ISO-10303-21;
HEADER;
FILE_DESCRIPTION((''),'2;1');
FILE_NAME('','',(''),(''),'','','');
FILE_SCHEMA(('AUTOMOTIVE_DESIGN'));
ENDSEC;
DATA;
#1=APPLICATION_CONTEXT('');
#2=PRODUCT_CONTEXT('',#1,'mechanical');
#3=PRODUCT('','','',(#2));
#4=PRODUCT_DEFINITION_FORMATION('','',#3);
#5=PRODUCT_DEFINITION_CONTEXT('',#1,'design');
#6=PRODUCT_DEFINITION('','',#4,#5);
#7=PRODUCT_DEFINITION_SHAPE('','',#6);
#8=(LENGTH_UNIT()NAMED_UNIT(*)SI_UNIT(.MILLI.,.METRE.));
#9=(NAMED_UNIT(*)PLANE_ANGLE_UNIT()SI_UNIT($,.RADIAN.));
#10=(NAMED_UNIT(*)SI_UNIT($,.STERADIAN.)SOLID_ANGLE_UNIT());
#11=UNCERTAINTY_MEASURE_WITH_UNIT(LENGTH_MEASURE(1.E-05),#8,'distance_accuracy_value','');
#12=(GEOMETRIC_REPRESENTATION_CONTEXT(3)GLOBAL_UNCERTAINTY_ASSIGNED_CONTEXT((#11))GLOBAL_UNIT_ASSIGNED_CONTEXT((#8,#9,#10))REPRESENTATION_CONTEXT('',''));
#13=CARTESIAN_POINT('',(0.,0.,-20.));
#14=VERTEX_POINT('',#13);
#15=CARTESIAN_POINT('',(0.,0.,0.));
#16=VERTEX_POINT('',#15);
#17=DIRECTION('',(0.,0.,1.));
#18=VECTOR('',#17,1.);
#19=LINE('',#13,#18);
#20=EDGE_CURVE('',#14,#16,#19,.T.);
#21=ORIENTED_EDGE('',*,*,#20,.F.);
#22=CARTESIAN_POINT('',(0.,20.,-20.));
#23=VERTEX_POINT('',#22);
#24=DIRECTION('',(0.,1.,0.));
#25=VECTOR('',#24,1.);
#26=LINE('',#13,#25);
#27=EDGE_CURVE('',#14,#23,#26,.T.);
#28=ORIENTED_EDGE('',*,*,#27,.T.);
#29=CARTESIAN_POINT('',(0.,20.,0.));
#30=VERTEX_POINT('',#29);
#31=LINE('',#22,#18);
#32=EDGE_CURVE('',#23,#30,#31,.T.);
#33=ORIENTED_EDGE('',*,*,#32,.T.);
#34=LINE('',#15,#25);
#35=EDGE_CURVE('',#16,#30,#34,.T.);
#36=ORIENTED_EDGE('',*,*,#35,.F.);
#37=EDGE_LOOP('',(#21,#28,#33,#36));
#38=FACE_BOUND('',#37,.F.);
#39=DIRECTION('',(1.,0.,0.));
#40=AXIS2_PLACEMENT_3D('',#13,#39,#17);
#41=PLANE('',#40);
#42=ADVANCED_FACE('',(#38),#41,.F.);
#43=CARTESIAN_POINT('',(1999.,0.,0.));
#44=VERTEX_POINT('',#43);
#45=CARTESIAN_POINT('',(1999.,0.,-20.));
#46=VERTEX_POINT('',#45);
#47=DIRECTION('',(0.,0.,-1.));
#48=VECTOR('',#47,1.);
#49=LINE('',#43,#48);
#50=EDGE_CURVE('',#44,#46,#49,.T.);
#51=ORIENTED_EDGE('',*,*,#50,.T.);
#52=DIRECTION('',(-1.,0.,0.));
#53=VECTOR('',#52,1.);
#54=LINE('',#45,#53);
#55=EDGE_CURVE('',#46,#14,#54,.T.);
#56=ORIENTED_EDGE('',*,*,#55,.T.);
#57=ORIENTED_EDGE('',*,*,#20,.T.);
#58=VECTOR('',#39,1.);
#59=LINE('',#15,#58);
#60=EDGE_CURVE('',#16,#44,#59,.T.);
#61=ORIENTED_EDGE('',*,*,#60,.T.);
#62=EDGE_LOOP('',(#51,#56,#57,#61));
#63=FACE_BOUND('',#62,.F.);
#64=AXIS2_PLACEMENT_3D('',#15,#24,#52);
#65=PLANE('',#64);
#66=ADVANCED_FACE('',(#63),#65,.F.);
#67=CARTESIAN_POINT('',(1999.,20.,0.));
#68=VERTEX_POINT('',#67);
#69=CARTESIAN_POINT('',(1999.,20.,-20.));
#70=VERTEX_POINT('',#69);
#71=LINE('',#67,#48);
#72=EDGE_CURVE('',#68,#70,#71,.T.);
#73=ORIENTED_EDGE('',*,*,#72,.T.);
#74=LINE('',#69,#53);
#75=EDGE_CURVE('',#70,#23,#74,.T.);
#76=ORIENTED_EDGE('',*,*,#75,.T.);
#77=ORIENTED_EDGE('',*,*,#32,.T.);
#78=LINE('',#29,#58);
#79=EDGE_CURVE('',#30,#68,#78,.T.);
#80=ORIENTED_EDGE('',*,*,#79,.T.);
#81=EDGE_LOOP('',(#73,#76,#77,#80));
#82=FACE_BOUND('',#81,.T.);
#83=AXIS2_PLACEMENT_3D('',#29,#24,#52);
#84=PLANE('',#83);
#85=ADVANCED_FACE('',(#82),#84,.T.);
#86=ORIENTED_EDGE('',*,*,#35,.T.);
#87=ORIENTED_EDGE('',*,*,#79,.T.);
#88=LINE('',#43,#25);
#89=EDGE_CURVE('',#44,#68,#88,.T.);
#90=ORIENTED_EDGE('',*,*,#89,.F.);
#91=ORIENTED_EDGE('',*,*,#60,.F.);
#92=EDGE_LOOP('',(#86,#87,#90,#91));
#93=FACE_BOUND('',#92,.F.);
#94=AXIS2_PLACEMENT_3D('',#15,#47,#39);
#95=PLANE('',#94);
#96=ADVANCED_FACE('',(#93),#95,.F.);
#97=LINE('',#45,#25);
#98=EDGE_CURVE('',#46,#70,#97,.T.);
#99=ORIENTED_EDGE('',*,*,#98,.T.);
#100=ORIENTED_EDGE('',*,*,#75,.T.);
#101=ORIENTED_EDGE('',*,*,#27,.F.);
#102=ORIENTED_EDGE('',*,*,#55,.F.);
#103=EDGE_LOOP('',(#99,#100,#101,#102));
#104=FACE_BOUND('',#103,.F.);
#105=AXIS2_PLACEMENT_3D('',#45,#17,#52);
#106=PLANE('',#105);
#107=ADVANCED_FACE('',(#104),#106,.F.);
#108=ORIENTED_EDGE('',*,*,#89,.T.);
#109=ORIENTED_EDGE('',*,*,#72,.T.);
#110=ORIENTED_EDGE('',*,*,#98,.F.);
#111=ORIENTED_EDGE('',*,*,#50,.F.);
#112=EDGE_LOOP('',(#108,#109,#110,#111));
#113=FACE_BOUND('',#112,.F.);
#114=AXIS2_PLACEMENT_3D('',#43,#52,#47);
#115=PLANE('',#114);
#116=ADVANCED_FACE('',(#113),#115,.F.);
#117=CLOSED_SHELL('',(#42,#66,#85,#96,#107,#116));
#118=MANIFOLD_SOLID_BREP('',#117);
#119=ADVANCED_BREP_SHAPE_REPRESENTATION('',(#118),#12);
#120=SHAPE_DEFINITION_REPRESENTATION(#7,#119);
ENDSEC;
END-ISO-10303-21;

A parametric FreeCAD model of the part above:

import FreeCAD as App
import Part
import Sketcher

V = App.Vector
Q = App.Units.Quantity

doc = App.newDocument("Part")
params = doc.addObject("Spreadsheet::Sheet", "Params")
for row, (alias, value) in enumerate([
    ("sketch1_width", "1999 mm"),
    ("sketch1_height", "20 mm"),
    ("pad1_length", "20 mm"),
], start=1):
    params.set(f"A{row}", alias)
    params.set(f"B{row}", "=" + value)
    params.setAlias(f"B{row}", alias)

body = doc.addObject("PartDesign::Body", "Body")

# Sketch on XZ plane
sketch1 = body.newObject("Sketcher::SketchObject", "Sketch")
sketch1.AttachmentSupport = (doc.getObject("XZ_Plane"), [""])
sketch1.MapMode = "FlatFace"
sketch1.addGeometry(Part.LineSegment(V(0, -20, 0), V(0, 0, 0)), False)
sketch1.addGeometry(Part.LineSegment(V(0, 0, 0), V(1999, 0, 0)), False)
sketch1.addGeometry(Part.LineSegment(V(1999, 0, 0), V(1999, -20, 0)), False)
sketch1.addGeometry(Part.LineSegment(V(1999, -20, 0), V(0, -20, 0)), False)
sketch1.addConstraint(Sketcher.Constraint("Coincident", 0, 2, 1, 1))
sketch1.addConstraint(Sketcher.Constraint("Coincident", 1, 2, 2, 1))
sketch1.addConstraint(Sketcher.Constraint("Coincident", 2, 2, 3, 1))
sketch1.addConstraint(Sketcher.Constraint("Coincident", 3, 2, 0, 1))
sketch1.addConstraint(Sketcher.Constraint("Vertical", 0))
sketch1.addConstraint(Sketcher.Constraint("Horizontal", 1))
sketch1.addConstraint(Sketcher.Constraint("Vertical", 2))
sketch1.addConstraint(Sketcher.Constraint("Horizontal", 3))
sketch1.addConstraint(Sketcher.Constraint("Coincident", 0, 2, -1, 1))
sketch1.addConstraint(Sketcher.Constraint("DistanceX", 1, 1, 1, 2, Q("1999 mm")))
sketch1.addConstraint(Sketcher.Constraint("DistanceY", 0, 1, 0, 2, Q("20 mm")))
sketch1.setExpression("Constraints[9]", "Params.sketch1_width")
sketch1.setExpression("Constraints[10]", "Params.sketch1_height")
pad1 = body.newObject("PartDesign::Pad", "Pad")
pad1.Profile = sketch1
pad1.setExpression("Length", "Params.pad1_length")
pad1.Reversed = True

doc.recompute()
